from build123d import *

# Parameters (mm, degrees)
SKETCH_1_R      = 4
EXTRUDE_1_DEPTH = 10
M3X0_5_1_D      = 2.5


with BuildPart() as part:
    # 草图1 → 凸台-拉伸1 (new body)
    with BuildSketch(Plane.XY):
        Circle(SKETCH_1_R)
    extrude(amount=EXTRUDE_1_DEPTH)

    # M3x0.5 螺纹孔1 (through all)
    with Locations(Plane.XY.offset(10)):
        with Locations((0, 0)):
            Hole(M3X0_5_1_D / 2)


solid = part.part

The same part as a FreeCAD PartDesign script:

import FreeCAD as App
import Part
import Sketcher

V = App.Vector
Q = App.Units.Quantity

doc = App.newDocument("Part")
body = doc.addObject("PartDesign::Body", "Body")

sketch1 = body.newObject("Sketcher::SketchObject", "Sketch")
sketch1.AttachmentSupport = (doc.getObject("XY_Plane"), [""])
sketch1.MapMode = "FlatFace"
sketch1.addGeometry(Part.Circle(V(0, 0, 0), V(0, 0, 1), 4), False)
sketch1.addConstraint([
    Sketcher.Constraint("Coincident", 0, 3, -1, 1),
    Sketcher.Constraint("Diameter", 0, Q("8 mm")),
])
pad1 = body.newObject("PartDesign::Pad", "Pad")
pad1.Profile = sketch1
pad1.Length = 10

sketch2 = body.newObject("Sketcher::SketchObject", "Sketch001")
sketch2.AttachmentSupport = (doc.getObject("XY_Plane"), [""])
sketch2.MapMode = "FlatFace"
sketch2.AttachmentOffset = App.Placement(V(0, 0, 10), App.Rotation())
sketch2.addGeometry(Part.Circle(V(0, 0, 0), V(0, 0, 1), 1.2), False)
sketch2.addConstraint([
    Sketcher.Constraint("Coincident", 0, 3, -1, 1),
    Sketcher.Constraint("Diameter", 0, Q("2.5 mm")),
])
doc.recompute()
hole = body.newObject("PartDesign::Hole", "Hole")
hole.Profile = sketch2
hole.ThreadType = "None"
hole.Diameter = 2.5
hole.DepthType = "ThroughAll"

doc.recompute()
